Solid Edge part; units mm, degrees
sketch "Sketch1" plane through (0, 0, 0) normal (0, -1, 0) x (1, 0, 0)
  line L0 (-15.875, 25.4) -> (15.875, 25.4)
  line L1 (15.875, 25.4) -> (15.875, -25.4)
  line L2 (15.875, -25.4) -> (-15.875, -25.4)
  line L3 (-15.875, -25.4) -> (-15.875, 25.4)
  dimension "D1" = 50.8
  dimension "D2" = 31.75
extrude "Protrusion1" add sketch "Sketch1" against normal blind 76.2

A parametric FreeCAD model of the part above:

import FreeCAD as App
import Part
import Sketcher
Q = App.Units.Quantity

doc = App.newDocument("Part")
body = doc.addObject("PartDesign::Body", "Body")

# Sketch on XZ plane
sketch1 = body.newObject("Sketcher::SketchObject", "Sketch")
sketch1.AttachmentSupport = (doc.getObject("XZ_Plane"), [""])
sketch1.MapMode = "FlatFace"
sketch1.addGeometry(Part.LineSegment(App.Vector(16, 25, 0), App.Vector(-16, 25, 0)), False)
sketch1.addGeometry(Part.LineSegment(App.Vector(-16, 25, 0), App.Vector(-16, -25, 0)), False)
sketch1.addGeometry(Part.LineSegment(App.Vector(-16, -25, 0), App.Vector(16, -25, 0)), False)
sketch1.addGeometry(Part.LineSegment(App.Vector(16, -25, 0), App.Vector(16, 25, 0)), False)
sketch1.addConstraint(Sketcher.Constraint("Coincident", 0, 2, 1, 1))
sketch1.addConstraint(Sketcher.Constraint("Coincident", 1, 2, 2, 1))
sketch1.addConstraint(Sketcher.Constraint("Coincident", 2, 2, 3, 1))
sketch1.addConstraint(Sketcher.Constraint("Coincident", 3, 2, 0, 1))
sketch1.addConstraint(Sketcher.Constraint("Horizontal", 0))
sketch1.addConstraint(Sketcher.Constraint("Vertical", 1))
sketch1.addConstraint(Sketcher.Constraint("Horizontal", 2))
sketch1.addConstraint(Sketcher.Constraint("Vertical", 3))
sketch1.addConstraint(Sketcher.Constraint("Symmetric", 0, 2, 2, 2, -1, 1))
sketch1.addConstraint(Sketcher.Constraint("DistanceY", 1, 2, 1, 1, Q("2 in")))
sketch1.addConstraint(Sketcher.Constraint("DistanceX", 0, 2, -1, 1, Q("0.625 in")))
pad1 = body.newObject("PartDesign::Pad", "Pad")
pad1.Profile = sketch1
pad1.Length = Q("3 in")
pad1.Reversed = True

doc.recompute()
